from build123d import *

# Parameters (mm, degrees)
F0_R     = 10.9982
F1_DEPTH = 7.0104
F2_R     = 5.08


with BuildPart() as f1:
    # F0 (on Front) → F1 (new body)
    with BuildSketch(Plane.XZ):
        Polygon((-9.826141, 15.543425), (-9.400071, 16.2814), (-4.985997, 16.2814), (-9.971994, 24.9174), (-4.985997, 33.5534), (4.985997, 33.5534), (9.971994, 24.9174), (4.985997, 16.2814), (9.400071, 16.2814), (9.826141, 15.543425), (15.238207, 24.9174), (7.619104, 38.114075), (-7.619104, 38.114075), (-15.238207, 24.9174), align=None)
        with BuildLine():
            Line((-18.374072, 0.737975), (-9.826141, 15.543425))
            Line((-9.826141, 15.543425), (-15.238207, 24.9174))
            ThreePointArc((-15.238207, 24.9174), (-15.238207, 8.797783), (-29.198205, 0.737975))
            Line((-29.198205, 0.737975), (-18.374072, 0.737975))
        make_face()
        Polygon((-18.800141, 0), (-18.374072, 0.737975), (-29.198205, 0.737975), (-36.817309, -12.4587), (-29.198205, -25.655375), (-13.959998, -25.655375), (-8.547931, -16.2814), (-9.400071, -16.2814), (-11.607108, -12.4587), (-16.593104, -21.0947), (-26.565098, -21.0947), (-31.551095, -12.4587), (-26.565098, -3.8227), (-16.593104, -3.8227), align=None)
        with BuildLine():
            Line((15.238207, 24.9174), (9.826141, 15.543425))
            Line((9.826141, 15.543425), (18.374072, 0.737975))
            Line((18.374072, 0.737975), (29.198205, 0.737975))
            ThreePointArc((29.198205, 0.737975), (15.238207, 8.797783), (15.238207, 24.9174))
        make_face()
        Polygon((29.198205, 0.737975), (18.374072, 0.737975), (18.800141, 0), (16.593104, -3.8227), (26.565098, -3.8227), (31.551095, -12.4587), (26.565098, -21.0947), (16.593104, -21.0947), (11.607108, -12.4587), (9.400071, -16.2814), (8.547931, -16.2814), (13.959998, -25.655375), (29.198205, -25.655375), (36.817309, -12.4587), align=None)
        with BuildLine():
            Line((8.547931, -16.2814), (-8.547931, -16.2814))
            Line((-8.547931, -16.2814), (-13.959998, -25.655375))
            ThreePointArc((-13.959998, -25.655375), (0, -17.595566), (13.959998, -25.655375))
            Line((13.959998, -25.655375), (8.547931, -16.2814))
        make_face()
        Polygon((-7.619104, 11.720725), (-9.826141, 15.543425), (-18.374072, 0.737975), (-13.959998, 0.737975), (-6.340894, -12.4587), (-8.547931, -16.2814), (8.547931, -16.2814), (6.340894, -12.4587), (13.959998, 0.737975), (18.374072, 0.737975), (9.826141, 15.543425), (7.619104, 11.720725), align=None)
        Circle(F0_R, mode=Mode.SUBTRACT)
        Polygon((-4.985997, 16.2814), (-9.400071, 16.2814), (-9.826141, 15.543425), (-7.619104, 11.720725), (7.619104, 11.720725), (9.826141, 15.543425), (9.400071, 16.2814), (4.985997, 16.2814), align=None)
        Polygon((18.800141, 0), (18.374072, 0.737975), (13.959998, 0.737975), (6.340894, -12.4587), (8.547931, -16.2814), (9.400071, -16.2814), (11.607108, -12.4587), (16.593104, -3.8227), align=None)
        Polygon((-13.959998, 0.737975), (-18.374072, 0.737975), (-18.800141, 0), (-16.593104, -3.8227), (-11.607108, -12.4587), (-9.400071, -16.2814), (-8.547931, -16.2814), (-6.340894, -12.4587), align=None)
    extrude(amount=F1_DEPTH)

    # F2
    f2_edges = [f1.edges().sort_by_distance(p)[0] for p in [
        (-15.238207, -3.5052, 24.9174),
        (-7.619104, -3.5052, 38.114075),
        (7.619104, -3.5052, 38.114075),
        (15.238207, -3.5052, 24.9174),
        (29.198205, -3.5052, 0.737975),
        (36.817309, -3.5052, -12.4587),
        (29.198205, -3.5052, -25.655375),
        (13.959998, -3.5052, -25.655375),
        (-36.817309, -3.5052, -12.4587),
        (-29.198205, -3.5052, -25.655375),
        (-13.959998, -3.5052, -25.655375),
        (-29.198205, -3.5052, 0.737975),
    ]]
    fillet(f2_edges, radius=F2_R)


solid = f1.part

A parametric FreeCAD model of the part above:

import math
import FreeCAD as App
import Part
import Sketcher
Q = App.Units.Quantity


def edges_at(feature, points):
    """Names of the edges that pass closest to the given points."""
    edges = feature.Shape.Edges
    near = lambda p: min(range(len(edges)), key=lambda i: edges[i].distToShape(Part.Vertex(*p))[0])
    return sorted({f"Edge{near(p) + 1}" for p in points})


def add_polygon(sketch, points):
    """Adds a closed chain of lines whose ends are joined by coincident constraints."""
    first, n = sketch.GeometryCount, len(points)
    for a, b in zip(points, points[1:] + points[:1]):
        sketch.addGeometry(Part.LineSegment(App.Vector(*a, 0), App.Vector(*b, 0)), False)
    for i in range(n):
        sketch.addConstraint(Sketcher.Constraint("Coincident", first + i, 2, first + (i + 1) % n, 1))

doc = App.newDocument("Part")
body = doc.addObject("PartDesign::Body", "Body")

# Sketch on XZ plane
sketch1 = body.newObject("Sketcher::SketchObject", "Sketch")
sketch1.AttachmentSupport = (doc.getObject("XZ_Plane"), [""])
sketch1.MapMode = "FlatFace"
sketch1.addGeometry(Part.LineSegment(App.Vector(14, -26, 0), App.Vector(29, -26, 0)), False)  # 0
sketch1.addGeometry(Part.LineSegment(App.Vector(29, -26, 0), App.Vector(37, -12, 0)), False)  # 1
sketch1.addGeometry(Part.LineSegment(App.Vector(37, -12, 0), App.Vector(29, 1, 0)), False)  # 2
sketch1.addGeometry(Part.ArcOfCircle(Part.Circle(App.Vector(29, 17, 0), App.Vector(0, 0, 1), 16), math.radians(150), math.radians(270)), False)  # 3
sketch1.addGeometry(Part.LineSegment(App.Vector(15, 25, 0), App.Vector(8, 38, 0)), False)  # 4
sketch1.addGeometry(Part.LineSegment(App.Vector(8, 38, 0), App.Vector(-8, 38, 0)), False)  # 5
sketch1.addGeometry(Part.LineSegment(App.Vector(-8, 38, 0), App.Vector(-15, 25, 0)), False)  # 6
sketch1.addGeometry(Part.ArcOfCircle(Part.Circle(App.Vector(-29, 17, 0), App.Vector(0, 0, 1), 16), math.radians(-90), math.radians(30)), False)  # 7
sketch1.addGeometry(Part.LineSegment(App.Vector(-29, 1, 0), App.Vector(-37, -12, 0)), False)  # 8
sketch1.addGeometry(Part.LineSegment(App.Vector(-37, -12, 0), App.Vector(-29, -26, 0)), False)  # 9
sketch1.addGeometry(Part.LineSegment(App.Vector(-29, -26, 0), App.Vector(-14, -26, 0)), False)  # 10
sketch1.addGeometry(Part.ArcOfCircle(Part.Circle(App.Vector(0, -34, 0), App.Vector(0, 0, 1), 16), math.radians(30), math.radians(150)), False)  # 11
add_polygon(sketch1, [(-12, -12), (-17, -21), (-27, -21), (-32, -12), (-27, -4), (-17, -4)])  # lines 12-17
sketch1.addGeometry(Part.Circle(App.Vector(0, 0, 0), App.Vector(0, 0, 1), 11), False)  # 18
add_polygon(sketch1, [(17, -4), (27, -4), (32, -12), (27, -21), (17, -21), (12, -12)])  # lines 19-24
add_polygon(sketch1, [(-5, 16), (-10, 25), (-5, 34), (5, 34), (10, 25), (5, 16)])  # lines 25-30
sketch1.addConstraint(Sketcher.Constraint("Coincident", 0, 2, 1, 1))
sketch1.addConstraint(Sketcher.Constraint("Coincident", 1, 2, 2, 1))
sketch1.addConstraint(Sketcher.Constraint("Coincident", 2, 2, 3, 2))
sketch1.addConstraint(Sketcher.Constraint("Coincident", 3, 1, 4, 1))
sketch1.addConstraint(Sketcher.Constraint("Coincident", 4, 2, 5, 1))
sketch1.addConstraint(Sketcher.Constraint("Coincident", 5, 2, 6, 1))
sketch1.addConstraint(Sketcher.Constraint("Coincident", 6, 2, 7, 2))
sketch1.addConstraint(Sketcher.Constraint("Coincident", 7, 1, 8, 1))
sketch1.addConstraint(Sketcher.Constraint("Coincident", 8, 2, 9, 1))
sketch1.addConstraint(Sketcher.Constraint("Coincident", 9, 2, 10, 1))
sketch1.addConstraint(Sketcher.Constraint("Coincident", 10, 2, 11, 2))
sketch1.addConstraint(Sketcher.Constraint("Coincident", 11, 1, 0, 1))
sketch1.addConstraint(Sketcher.Constraint("Horizontal", 0))
sketch1.addConstraint(Sketcher.Constraint("Horizontal", 5))
sketch1.addConstraint(Sketcher.Constraint("Horizontal", 10))
sketch1.addConstraint(Sketcher.Constraint("Horizontal", 13))
sketch1.addConstraint(Sketcher.Constraint("Horizontal", 16))
sketch1.addConstraint(Sketcher.Constraint("Horizontal", 19))
sketch1.addConstraint(Sketcher.Constraint("Horizontal", 22))
sketch1.addConstraint(Sketcher.Constraint("Horizontal", 27))
sketch1.addConstraint(Sketcher.Constraint("Horizontal", 30))
sketch1.addConstraint(Sketcher.Constraint("Coincident", 18, 3, -1, 1))
sketch1.addConstraint(Sketcher.Constraint("Equal", 3, 7))
sketch1.addConstraint(Sketcher.Constraint("Equal", 7, 11))
sketch1.addConstraint(Sketcher.Constraint("Symmetric", 3, 3, 7, 3, -2))
sketch1.addConstraint(Sketcher.Constraint("Symmetric", 1, 2, 8, 2, -2))
sketch1.addConstraint(Sketcher.Constraint("Symmetric", 0, 2, 9, 2, -2))
sketch1.addConstraint(Sketcher.Constraint("Symmetric", 15, 2, 19, 2, -2))
sketch1.addConstraint(Sketcher.Constraint("Symmetric", 14, 2, 20, 2, -2))
sketch1.addConstraint(Sketcher.Constraint("Symmetric", 13, 2, 21, 2, -2))
sketch1.addConstraint(Sketcher.Constraint("Symmetric", 17, 2, 23, 2, -2))
sketch1.addConstraint(Sketcher.Constraint("Symmetric", 25, 2, 28, 2, -2))
sketch1.addConstraint(Sketcher.Constraint("PointOnObject", 11, 3, -2))
sketch1.addConstraint(Sketcher.Constraint("Parallel", 2, 4))
sketch1.addConstraint(Sketcher.Constraint("Parallel", 1, 6))
sketch1.addConstraint(Sketcher.Constraint("Parallel", 6, 8))
sketch1.addConstraint(Sketcher.Constraint("Parallel", 4, 9))
sketch1.addConstraint(Sketcher.Constraint("Parallel", 8, 12))
sketch1.addConstraint(Sketcher.Constraint("Parallel", 9, 14))
sketch1.addConstraint(Sketcher.Constraint("Parallel", 12, 15))
sketch1.addConstraint(Sketcher.Constraint("Parallel", 14, 17))
sketch1.addConstraint(Sketcher.Constraint("Parallel", 20, 23))
sketch1.addConstraint(Sketcher.Constraint("Parallel", 21, 24))
sketch1.addConstraint(Sketcher.Constraint("Parallel", 23, 25))
sketch1.addConstraint(Sketcher.Constraint("Parallel", 24, 26))
sketch1.addConstraint(Sketcher.Constraint("Parallel", 25, 28))
sketch1.addConstraint(Sketcher.Constraint("Parallel", 26, 29))
sketch1.addConstraint(Sketcher.Constraint("Horizontal", 3, 1, 6, 2))
sketch1.addConstraint(Sketcher.Constraint("Horizontal", 8, 2, 14, 2))
sketch1.addConstraint(Sketcher.Constraint("Horizontal", 14, 2, 17, 2))
sketch1.addConstraint(Sketcher.Constraint("Horizontal", 6, 2, 25, 2))
sketch1.addConstraint(Sketcher.Constraint("Vertical", 3, 3, 0, 2))
sketch1.addConstraint(Sketcher.Constraint("Vertical", 0, 2, 2, 2))
sketch1.addConstraint(Sketcher.Constraint("Vertical", 13, 2, 15, 2))
sketch1.addConstraint(Sketcher.Constraint("Vertical", 27, 2, 29, 2))
sketch1.addConstraint(Sketcher.Constraint("Equal", 0, 5))
sketch1.addConstraint(Sketcher.Constraint("Equal", 22, 27))
sketch1.addConstraint(Sketcher.Constraint("Equal", 2, 4))
sketch1.addConstraint(Sketcher.Constraint("Equal", 24, 25))
sketch1.addConstraint(Sketcher.Constraint("Diameter", 18, Q("0.866 in")))
sketch1.addConstraint(Sketcher.Constraint("Angle", 1, Q("60 deg")))
sketch1.addConstraint(Sketcher.Constraint("DistanceY", 12, 2, 8, 2, Q("0.34 in")))
sketch1.addConstraint(Sketcher.Constraint("DistanceY", -1, 1, 3, 1, Q("0.981 in")))
sketch1.addConstraint(Sketcher.Constraint("DistanceY", 1, 2, -1, 1, Q("0.4905 in")))
sketch1.addConstraint(Sketcher.Constraint("Radius", 3, 16.119616))
sketch1.addConstraint(Sketcher.Constraint("DistanceX", -1, 1, 11, 1, 13.959998))
sketch1.addConstraint(Sketcher.Constraint("DistanceX", 3, 1, 1, 2, 21.579102))
sketch1.addConstraint(Sketcher.Constraint("DistanceX", 9, 2, 12, 2, 12.605101))
sketch1.addConstraint(Sketcher.Constraint("DistanceX", 13, 2, 10, 2, 12.6051))
pad1 = body.newObject("PartDesign::Pad", "Pad")
pad1.Profile = sketch1
pad1.Length = Q("0.276 in")
doc.recompute()

fillet = body.newObject("PartDesign::Fillet", "Fillet")
fillet.Base = (pad1, edges_at(pad1, [
    (-15.238, -3.505, 24.917),
    (-7.619, -3.505, 38.114),
    (7.619, -3.505, 38.114),
    (15.238, -3.505, 24.917),
    (29.198, -3.505, 0.738),
    (36.817, -3.505, -12.459),
    (29.198, -3.505, -25.655),
    (13.96, -3.505, -25.655),
    (-36.817, -3.505, -12.459),
    (-29.198, -3.505, -25.655),
    (-13.96, -3.505, -25.655),
    (-29.198, -3.505, 0.738),
]))
fillet.Radius = Q("0.2 in")

doc.recompute()
